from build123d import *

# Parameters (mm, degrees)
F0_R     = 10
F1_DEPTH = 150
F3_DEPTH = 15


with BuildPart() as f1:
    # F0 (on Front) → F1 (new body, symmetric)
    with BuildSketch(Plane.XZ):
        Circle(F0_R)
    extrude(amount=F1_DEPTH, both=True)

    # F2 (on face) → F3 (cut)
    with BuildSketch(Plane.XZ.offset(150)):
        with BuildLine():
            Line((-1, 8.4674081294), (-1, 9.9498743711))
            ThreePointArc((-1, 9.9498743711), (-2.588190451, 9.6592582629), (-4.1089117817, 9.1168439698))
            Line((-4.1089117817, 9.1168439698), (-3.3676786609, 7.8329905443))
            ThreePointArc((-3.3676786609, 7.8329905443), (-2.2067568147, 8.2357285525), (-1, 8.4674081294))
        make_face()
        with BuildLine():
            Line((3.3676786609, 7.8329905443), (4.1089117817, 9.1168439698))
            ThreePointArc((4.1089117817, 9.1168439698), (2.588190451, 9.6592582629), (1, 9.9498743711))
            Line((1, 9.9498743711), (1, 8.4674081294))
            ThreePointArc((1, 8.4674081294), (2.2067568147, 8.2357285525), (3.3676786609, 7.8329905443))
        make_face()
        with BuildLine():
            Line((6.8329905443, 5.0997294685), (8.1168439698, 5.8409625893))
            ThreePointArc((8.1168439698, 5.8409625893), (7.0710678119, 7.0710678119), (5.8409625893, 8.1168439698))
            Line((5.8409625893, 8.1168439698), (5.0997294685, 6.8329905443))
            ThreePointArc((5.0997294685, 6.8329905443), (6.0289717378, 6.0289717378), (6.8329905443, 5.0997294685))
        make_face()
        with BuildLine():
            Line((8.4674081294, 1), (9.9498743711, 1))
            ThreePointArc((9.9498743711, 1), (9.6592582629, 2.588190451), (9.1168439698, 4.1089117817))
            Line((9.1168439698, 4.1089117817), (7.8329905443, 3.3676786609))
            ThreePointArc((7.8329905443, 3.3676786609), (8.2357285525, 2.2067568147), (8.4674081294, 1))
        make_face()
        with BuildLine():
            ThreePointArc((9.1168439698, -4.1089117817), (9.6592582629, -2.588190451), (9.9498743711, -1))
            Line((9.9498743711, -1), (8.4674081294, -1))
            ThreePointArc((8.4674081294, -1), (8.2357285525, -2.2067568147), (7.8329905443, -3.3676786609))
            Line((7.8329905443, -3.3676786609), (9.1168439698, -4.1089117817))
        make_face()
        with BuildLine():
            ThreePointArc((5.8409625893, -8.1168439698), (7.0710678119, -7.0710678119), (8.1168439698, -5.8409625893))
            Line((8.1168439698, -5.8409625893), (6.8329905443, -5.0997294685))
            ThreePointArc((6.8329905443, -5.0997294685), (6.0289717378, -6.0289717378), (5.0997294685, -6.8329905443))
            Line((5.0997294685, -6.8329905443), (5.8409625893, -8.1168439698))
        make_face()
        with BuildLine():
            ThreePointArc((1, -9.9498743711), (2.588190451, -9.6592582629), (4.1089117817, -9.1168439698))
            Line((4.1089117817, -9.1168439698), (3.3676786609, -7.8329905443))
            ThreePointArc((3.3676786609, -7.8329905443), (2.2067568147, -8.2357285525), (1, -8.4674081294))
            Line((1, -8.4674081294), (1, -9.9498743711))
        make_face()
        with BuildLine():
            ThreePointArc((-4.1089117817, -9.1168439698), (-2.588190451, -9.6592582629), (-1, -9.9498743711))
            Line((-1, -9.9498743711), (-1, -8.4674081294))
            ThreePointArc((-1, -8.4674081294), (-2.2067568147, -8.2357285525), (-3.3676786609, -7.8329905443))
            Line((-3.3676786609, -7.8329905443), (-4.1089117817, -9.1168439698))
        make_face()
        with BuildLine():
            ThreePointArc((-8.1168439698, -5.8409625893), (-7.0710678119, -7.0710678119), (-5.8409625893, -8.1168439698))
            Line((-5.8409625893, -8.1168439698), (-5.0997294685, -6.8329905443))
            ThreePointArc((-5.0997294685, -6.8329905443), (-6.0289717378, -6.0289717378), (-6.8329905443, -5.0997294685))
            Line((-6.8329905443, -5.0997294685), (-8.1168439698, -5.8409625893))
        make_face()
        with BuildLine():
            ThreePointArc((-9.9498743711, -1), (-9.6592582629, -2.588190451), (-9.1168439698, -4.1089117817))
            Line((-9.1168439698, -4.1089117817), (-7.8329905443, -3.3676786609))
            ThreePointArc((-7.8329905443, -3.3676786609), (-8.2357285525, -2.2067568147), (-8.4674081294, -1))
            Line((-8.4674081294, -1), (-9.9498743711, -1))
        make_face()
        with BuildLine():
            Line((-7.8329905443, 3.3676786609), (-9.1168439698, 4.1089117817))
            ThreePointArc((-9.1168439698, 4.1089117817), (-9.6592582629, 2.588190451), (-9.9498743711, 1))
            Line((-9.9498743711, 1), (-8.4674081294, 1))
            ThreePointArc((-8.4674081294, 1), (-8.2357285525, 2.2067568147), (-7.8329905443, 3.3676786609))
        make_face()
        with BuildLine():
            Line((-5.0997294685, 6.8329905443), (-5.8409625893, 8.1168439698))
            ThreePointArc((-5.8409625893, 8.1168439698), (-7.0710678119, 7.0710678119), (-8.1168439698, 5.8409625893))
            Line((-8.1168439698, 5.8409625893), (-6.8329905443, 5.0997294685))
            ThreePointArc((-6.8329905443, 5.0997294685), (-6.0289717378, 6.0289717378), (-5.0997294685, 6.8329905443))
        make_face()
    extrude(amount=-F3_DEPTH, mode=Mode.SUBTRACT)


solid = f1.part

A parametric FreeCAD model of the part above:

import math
import FreeCAD as App
import Part
import Sketcher

V = App.Vector
Q = App.Units.Quantity

doc = App.newDocument("Part")
body = doc.addObject("PartDesign::Body", "Body")

# Sketch on XZ plane
sketch1 = body.newObject("Sketcher::SketchObject", "Sketch")
sketch1.AttachmentSupport = (doc.getObject("XZ_Plane"), [""])
sketch1.MapMode = "FlatFace"
sketch1.addGeometry(Part.Circle(V(0, 0, 0), V(0, 0, 1), 10), False)
sketch1.addConstraint([
    Sketcher.Constraint("Coincident", 0, 3, -1, 1),
    Sketcher.Constraint("Diameter", 0, Q("20 mm")),
])
pad1 = body.newObject("PartDesign::Pad", "Pad")
pad1.Profile = sketch1
pad1.Length = 300
pad1.Midplane = True

# Sketch on XZ plane
sketch2 = body.newObject("Sketcher::SketchObject", "Sketch001")
sketch2.AttachmentSupport = (doc.getObject("XZ_Plane"), [""])
sketch2.MapMode = "FlatFace"
sketch2.AttachmentOffset = App.Placement(V(0, 0, 150), App.Rotation())
sketch2.addGeometry([
    Part.LineSegment(V(-1, 8.467408, 0), V(-1, 9.949874, 0)),  # 0
    Part.ArcOfCircle(Part.Circle(V(0, 0, 0), V(0, 0, 1), 10), math.radians(95.73917), math.radians(114.26083)),  # 1
    Part.LineSegment(V(-4.108912, 9.116844, 0), V(-3.367679, 7.832991, 0)),  # 2
    Part.ArcOfCircle(Part.Circle(V(0, 0, 0), V(0, 0, 1), 8.526254), math.radians(96.735427), math.radians(113.264573)),  # 3
    Part.LineSegment(V(3.367679, 7.832991, 0), V(4.108912, 9.116844, 0)),  # 4
    Part.ArcOfCircle(Part.Circle(V(0, 0, 0), V(0, 0, 1), 10), math.radians(65.73917), math.radians(84.26083)),  # 5
    Part.LineSegment(V(1, 9.949874, 0), V(1, 8.467408, 0)),  # 6
    Part.ArcOfCircle(Part.Circle(V(0, 0, 0), V(0, 0, 1), 8.526254), math.radians(66.735427), math.radians(83.264573)),  # 7
    Part.LineSegment(V(6.832991, 5.099729, 0), V(8.116844, 5.840963, 0)),  # 8
    Part.ArcOfCircle(Part.Circle(V(0, 0, 0), V(0, 0, 1), 10), math.radians(35.73917), math.radians(54.26083)),  # 9
    Part.LineSegment(V(5.840963, 8.116844, 0), V(5.099729, 6.832991, 0)),  # 10
    Part.ArcOfCircle(Part.Circle(V(0, 0, 0), V(0, 0, 1), 8.526254), math.radians(36.735427), math.radians(53.264573)),  # 11
    Part.LineSegment(V(8.467408, 1, 0), V(9.949874, 1, 0)),  # 12
    Part.ArcOfCircle(Part.Circle(V(0, 0, 0), V(0, 0, 1), 10), math.radians(5.73917), math.radians(24.26083)),  # 13
    Part.LineSegment(V(9.116844, 4.108912, 0), V(7.832991, 3.367679, 0)),  # 14
    Part.ArcOfCircle(Part.Circle(V(0, 0, 0), V(0, 0, 1), 8.526254), math.radians(6.735427), math.radians(23.264573)),  # 15
    Part.ArcOfCircle(Part.Circle(V(0, 0, 0), V(0, 0, 1), 10), math.radians(-24.26083), math.radians(-5.73917)),  # 16
    Part.LineSegment(V(9.949874, -1, 0), V(8.467408, -1, 0)),  # 17
    Part.ArcOfCircle(Part.Circle(V(0, 0, 0), V(0, 0, 1), 8.526254), math.radians(-23.264573), math.radians(-6.735427)),  # 18
    Part.LineSegment(V(7.832991, -3.367679, 0), V(9.116844, -4.108912, 0)),  # 19
    Part.ArcOfCircle(Part.Circle(V(0, 0, 0), V(0, 0, 1), 10), math.radians(-54.26083), math.radians(-35.73917)),  # 20
    Part.LineSegment(V(8.116844, -5.840963, 0), V(6.832991, -5.099729, 0)),  # 21
    Part.ArcOfCircle(Part.Circle(V(0, 0, 0), V(0, 0, 1), 8.526254), math.radians(-53.264573), math.radians(-36.735427)),  # 22
    Part.LineSegment(V(5.099729, -6.832991, 0), V(5.840963, -8.116844, 0)),  # 23
    Part.ArcOfCircle(Part.Circle(V(0, 0, 0), V(0, 0, 1), 10), math.radians(-84.26083), math.radians(-65.73917)),  # 24
    Part.LineSegment(V(4.108912, -9.116844, 0), V(3.367679, -7.832991, 0)),  # 25
    Part.ArcOfCircle(Part.Circle(V(0, 0, 0), V(0, 0, 1), 8.526254), math.radians(-83.264573), math.radians(-66.735427)),  # 26
    Part.LineSegment(V(1, -8.467408, 0), V(1, -9.949874, 0)),  # 27
    Part.ArcOfCircle(Part.Circle(V(0, 0, 0), V(0, 0, 1), 10), math.radians(-114.26083), math.radians(-95.73917)),  # 28
    Part.LineSegment(V(-1, -9.949874, 0), V(-1, -8.467408, 0)),  # 29
    Part.ArcOfCircle(Part.Circle(V(0, 0, 0), V(0, 0, 1), 8.526254), math.radians(-113.264573), math.radians(-96.735427)),  # 30
    Part.LineSegment(V(-3.367679, -7.832991, 0), V(-4.108912, -9.116844, 0)),  # 31
    Part.ArcOfCircle(Part.Circle(V(0, 0, 0), V(0, 0, 1), 10), math.radians(-144.26083), math.radians(-125.73917)),  # 32
    Part.LineSegment(V(-5.840963, -8.116844, 0), V(-5.099729, -6.832991, 0)),  # 33
    Part.ArcOfCircle(Part.Circle(V(0, 0, 0), V(0, 0, 1), 8.526254), math.radians(-143.264573), math.radians(-126.735427)),  # 34
    Part.LineSegment(V(-6.832991, -5.099729, 0), V(-8.116844, -5.840963, 0)),  # 35
    Part.ArcOfCircle(Part.Circle(V(0, 0, 0), V(0, 0, 1), 10), math.radians(-174.26083), math.radians(-155.73917)),  # 36
    Part.LineSegment(V(-9.116844, -4.108912, 0), V(-7.832991, -3.367679, 0)),  # 37
    Part.ArcOfCircle(Part.Circle(V(0, 0, 0), V(0, 0, 1), 8.526254), math.radians(-173.264573), math.radians(-156.735427)),  # 38
    Part.LineSegment(V(-8.467408, -1, 0), V(-9.949874, -1, 0)),  # 39
    Part.LineSegment(V(-7.832991, 3.367679, 0), V(-9.116844, 4.108912, 0)),  # 40
    Part.ArcOfCircle(Part.Circle(V(0, 0, 0), V(0, 0, 1), 10), math.radians(155.73917), math.radians(174.26083)),  # 41
    Part.LineSegment(V(-9.949874, 1, 0), V(-8.467408, 1, 0)),  # 42
    Part.ArcOfCircle(Part.Circle(V(0, 0, 0), V(0, 0, 1), 8.526254), math.radians(156.735427), math.radians(173.264573)),  # 43
    Part.LineSegment(V(-5.099729, 6.832991, 0), V(-5.840963, 8.116844, 0)),  # 44
    Part.ArcOfCircle(Part.Circle(V(0, 0, 0), V(0, 0, 1), 10), math.radians(125.73917), math.radians(144.26083)),  # 45
    Part.LineSegment(V(-8.116844, 5.840963, 0), V(-6.832991, 5.099729, 0)),  # 46
    Part.ArcOfCircle(Part.Circle(V(0, 0, 0), V(0, 0, 1), 8.526254), math.radians(126.735427), math.radians(143.264573)),  # 47
], False)
sketch2.addConstraint([
    Sketcher.Constraint("Coincident", 0, 2, 1, 1),
    Sketcher.Constraint("Coincident", 1, 2, 2, 1),
    Sketcher.Constraint("Coincident", 2, 2, 3, 2),
    Sketcher.Constraint("Coincident", 3, 1, 0, 1),
    Sketcher.Constraint("Coincident", 4, 2, 5, 1),
    Sketcher.Constraint("Coincident", 5, 2, 6, 1),
    Sketcher.Constraint("Coincident", 6, 2, 7, 2),
    Sketcher.Constraint("Coincident", 7, 1, 4, 1),
    Sketcher.Constraint("Coincident", 8, 2, 9, 1),
    Sketcher.Constraint("Coincident", 9, 2, 10, 1),
    Sketcher.Constraint("Coincident", 10, 2, 11, 2),
    Sketcher.Constraint("Coincident", 11, 1, 8, 1),
    Sketcher.Constraint("Coincident", 12, 2, 13, 1),
    Sketcher.Constraint("Coincident", 13, 2, 14, 1),
    Sketcher.Constraint("Coincident", 14, 2, 15, 2),
    Sketcher.Constraint("Coincident", 15, 1, 12, 1),
    Sketcher.Constraint("Coincident", 16, 2, 17, 1),
    Sketcher.Constraint("Coincident", 17, 2, 18, 2),
    Sketcher.Constraint("Coincident", 18, 1, 19, 1),
    Sketcher.Constraint("Coincident", 19, 2, 16, 1),
    Sketcher.Constraint("Coincident", 20, 2, 21, 1),
    Sketcher.Constraint("Coincident", 21, 2, 22, 2),
    Sketcher.Constraint("Coincident", 22, 1, 23, 1),
    Sketcher.Constraint("Coincident", 23, 2, 20, 1),
    Sketcher.Constraint("Coincident", 24, 2, 25, 1),
    Sketcher.Constraint("Coincident", 25, 2, 26, 2),
    Sketcher.Constraint("Coincident", 26, 1, 27, 1),
    Sketcher.Constraint("Coincident", 27, 2, 24, 1),
    Sketcher.Constraint("Coincident", 28, 2, 29, 1),
    Sketcher.Constraint("Coincident", 29, 2, 30, 2),
    Sketcher.Constraint("Coincident", 30, 1, 31, 1),
    Sketcher.Constraint("Coincident", 31, 2, 28, 1),
    Sketcher.Constraint("Coincident", 32, 2, 33, 1),
    Sketcher.Constraint("Coincident", 33, 2, 34, 2),
    Sketcher.Constraint("Coincident", 34, 1, 35, 1),
    Sketcher.Constraint("Coincident", 35, 2, 32, 1),
    Sketcher.Constraint("Coincident", 36, 2, 37, 1),
    Sketcher.Constraint("Coincident", 37, 2, 38, 2),
    Sketcher.Constraint("Coincident", 38, 1, 39, 1),
    Sketcher.Constraint("Coincident", 39, 2, 36, 1),
    Sketcher.Constraint("Coincident", 40, 2, 41, 1),
    Sketcher.Constraint("Coincident", 41, 2, 42, 1),
    Sketcher.Constraint("Coincident", 42, 2, 43, 2),
    Sketcher.Constraint("Coincident", 43, 1, 40, 1),
    Sketcher.Constraint("Coincident", 44, 2, 45, 1),
    Sketcher.Constraint("Coincident", 45, 2, 46, 1),
    Sketcher.Constraint("Coincident", 46, 2, 47, 2),
    Sketcher.Constraint("Coincident", 47, 1, 44, 1),
    Sketcher.Constraint("Vertical", 0),
    Sketcher.Constraint("Vertical", 6),
    Sketcher.Constraint("Horizontal", 12),
    Sketcher.Constraint("Horizontal", 17),
    Sketcher.Constraint("Vertical", 27),
    Sketcher.Constraint("Vertical", 29),
    Sketcher.Constraint("Horizontal", 39),
    Sketcher.Constraint("Horizontal", 42),
    Sketcher.Constraint("Coincident", 1, 3, -1, 1),
    Sketcher.Constraint("Coincident", 3, 3, -1, 1),
    Sketcher.Constraint("Coincident", 5, 3, -1, 1),
    Sketcher.Constraint("Coincident", 7, 3, -1, 1),
    Sketcher.Constraint("Coincident", 9, 3, -1, 1),
    Sketcher.Constraint("Coincident", 11, 3, -1, 1),
    Sketcher.Constraint("Coincident", 13, 3, -1, 1),
    Sketcher.Constraint("Coincident", 15, 3, -1, 1),
    Sketcher.Constraint("Coincident", 16, 3, -1, 1),
    Sketcher.Constraint("Coincident", 18, 3, -1, 1),
    Sketcher.Constraint("Coincident", 20, 3, -1, 1),
    Sketcher.Constraint("Coincident", 22, 3, -1, 1),
    Sketcher.Constraint("Coincident", 24, 3, -1, 1),
    Sketcher.Constraint("Coincident", 26, 3, -1, 1),
    Sketcher.Constraint("Coincident", 28, 3, -1, 1),
    Sketcher.Constraint("Coincident", 30, 3, -1, 1),
    Sketcher.Constraint("Coincident", 32, 3, -1, 1),
    Sketcher.Constraint("Coincident", 34, 3, -1, 1),
    Sketcher.Constraint("Coincident", 36, 3, -1, 1),
    Sketcher.Constraint("Coincident", 38, 3, -1, 1),
    Sketcher.Constraint("Coincident", 41, 3, -1, 1),
    Sketcher.Constraint("Coincident", 43, 3, -1, 1),
    Sketcher.Constraint("Coincident", 45, 3, -1, 1),
    Sketcher.Constraint("Coincident", 47, 3, -1, 1),
    Sketcher.Constraint("Equal", 1, 5),
    Sketcher.Constraint("Equal", 3, 7),
    Sketcher.Constraint("Equal", 5, 9),
    Sketcher.Constraint("Equal", 7, 11),
    Sketcher.Constraint("Equal", 9, 13),
    Sketcher.Constraint("Equal", 11, 15),
    Sketcher.Constraint("Equal", 13, 16),
    Sketcher.Constraint("Equal", 15, 18),
    Sketcher.Constraint("Equal", 16, 20),
    Sketcher.Constraint("Equal", 18, 22),
    Sketcher.Constraint("Equal", 20, 24),
    Sketcher.Constraint("Equal", 22, 26),
    Sketcher.Constraint("Equal", 24, 28),
    Sketcher.Constraint("Equal", 26, 30),
    Sketcher.Constraint("Equal", 28, 32),
    Sketcher.Constraint("Equal", 30, 34),
    Sketcher.Constraint("Equal", 32, 36),
    Sketcher.Constraint("Equal", 34, 38),
    Sketcher.Constraint("Equal", 36, 41),
    Sketcher.Constraint("Equal", 38, 43),
    Sketcher.Constraint("Equal", 41, 45),
    Sketcher.Constraint("Equal", 43, 47),
    Sketcher.Constraint("Perpendicular", 2, 8),
    Sketcher.Constraint("Parallel", 4, 10),
    Sketcher.Constraint("Parallel", 8, 14),
    Sketcher.Constraint("Perpendicular", 10, 19),
    Sketcher.Constraint("Parallel", 19, 21),
    Sketcher.Constraint("Perpendicular", 14, 23),
    Sketcher.Constraint("Parallel", 23, 25),
    Sketcher.Constraint("Perpendicular", 21, 31),
    Sketcher.Constraint("Parallel", 31, 33),
    Sketcher.Constraint("Perpendicular", 25, 35),
    Sketcher.Constraint("Parallel", 35, 37),
    Sketcher.Constraint("Perpendicular", 33, 40),
    Sketcher.Constraint("Perpendicular", 37, 44),
    Sketcher.Constraint("Parallel", 40, 46),
    Sketcher.Constraint("Horizontal", 1, 2, 4, 2),
    Sketcher.Constraint("Horizontal", 0, 2, 5, 2),
    Sketcher.Constraint("Horizontal", 2, 2, 7, 1),
    Sketcher.Constraint("Horizontal", 27, 2, 28, 2),
    Sketcher.Constraint("Horizontal", 25, 2, 30, 1),
    Sketcher.Constraint("Horizontal", 23, 2, 32, 2),
    Sketcher.Constraint("Horizontal", 21, 2, 34, 1),
    Sketcher.Constraint("Horizontal", 19, 2, 36, 2),
    Sketcher.Constraint("Horizontal", 17, 2, 38, 1),
    Sketcher.Constraint("Horizontal", 13, 2, 40, 2),
    Sketcher.Constraint("Horizontal", 15, 1, 41, 2),
    Sketcher.Constraint("Horizontal", 9, 2, 44, 2),
    Sketcher.Constraint("Horizontal", 8, 2, 45, 2),
    Sketcher.Constraint("Vertical", 12, 2, 16, 2),
    Sketcher.Constraint("Vertical", 14, 2, 18, 1),
    Sketcher.Constraint("Vertical", 8, 2, 20, 2),
    Sketcher.Constraint("Vertical", 10, 2, 22, 1),
    Sketcher.Constraint("Vertical", 4, 2, 24, 2),
    Sketcher.Constraint("Vertical", 6, 2, 26, 1),
    Sketcher.Constraint("Equal", 42, 0),
    Sketcher.Constraint("Equal", 4, 8),
    Sketcher.Constraint("Equal", 8, 10),
    Sketcher.Constraint("Equal", 10, 14),
    Sketcher.Constraint("Radius", 1, Q("10 mm")),
    Sketcher.Constraint("Angle", 2, Q("-60 deg")),
    Sketcher.Constraint("DistanceX", 0, 2, -1, 1, Q("1 mm")),
    Sketcher.Constraint("Radius", 3, Q("8.526254 mm")),
    Sketcher.Constraint("DistanceX", 1, 2, -1, 1, Q("4.108912 mm")),
])
pocket1 = body.newObject("PartDesign::Pocket", "Pocket")
pocket1.Profile = sketch2
pocket1.Length = 15

doc.recompute()
